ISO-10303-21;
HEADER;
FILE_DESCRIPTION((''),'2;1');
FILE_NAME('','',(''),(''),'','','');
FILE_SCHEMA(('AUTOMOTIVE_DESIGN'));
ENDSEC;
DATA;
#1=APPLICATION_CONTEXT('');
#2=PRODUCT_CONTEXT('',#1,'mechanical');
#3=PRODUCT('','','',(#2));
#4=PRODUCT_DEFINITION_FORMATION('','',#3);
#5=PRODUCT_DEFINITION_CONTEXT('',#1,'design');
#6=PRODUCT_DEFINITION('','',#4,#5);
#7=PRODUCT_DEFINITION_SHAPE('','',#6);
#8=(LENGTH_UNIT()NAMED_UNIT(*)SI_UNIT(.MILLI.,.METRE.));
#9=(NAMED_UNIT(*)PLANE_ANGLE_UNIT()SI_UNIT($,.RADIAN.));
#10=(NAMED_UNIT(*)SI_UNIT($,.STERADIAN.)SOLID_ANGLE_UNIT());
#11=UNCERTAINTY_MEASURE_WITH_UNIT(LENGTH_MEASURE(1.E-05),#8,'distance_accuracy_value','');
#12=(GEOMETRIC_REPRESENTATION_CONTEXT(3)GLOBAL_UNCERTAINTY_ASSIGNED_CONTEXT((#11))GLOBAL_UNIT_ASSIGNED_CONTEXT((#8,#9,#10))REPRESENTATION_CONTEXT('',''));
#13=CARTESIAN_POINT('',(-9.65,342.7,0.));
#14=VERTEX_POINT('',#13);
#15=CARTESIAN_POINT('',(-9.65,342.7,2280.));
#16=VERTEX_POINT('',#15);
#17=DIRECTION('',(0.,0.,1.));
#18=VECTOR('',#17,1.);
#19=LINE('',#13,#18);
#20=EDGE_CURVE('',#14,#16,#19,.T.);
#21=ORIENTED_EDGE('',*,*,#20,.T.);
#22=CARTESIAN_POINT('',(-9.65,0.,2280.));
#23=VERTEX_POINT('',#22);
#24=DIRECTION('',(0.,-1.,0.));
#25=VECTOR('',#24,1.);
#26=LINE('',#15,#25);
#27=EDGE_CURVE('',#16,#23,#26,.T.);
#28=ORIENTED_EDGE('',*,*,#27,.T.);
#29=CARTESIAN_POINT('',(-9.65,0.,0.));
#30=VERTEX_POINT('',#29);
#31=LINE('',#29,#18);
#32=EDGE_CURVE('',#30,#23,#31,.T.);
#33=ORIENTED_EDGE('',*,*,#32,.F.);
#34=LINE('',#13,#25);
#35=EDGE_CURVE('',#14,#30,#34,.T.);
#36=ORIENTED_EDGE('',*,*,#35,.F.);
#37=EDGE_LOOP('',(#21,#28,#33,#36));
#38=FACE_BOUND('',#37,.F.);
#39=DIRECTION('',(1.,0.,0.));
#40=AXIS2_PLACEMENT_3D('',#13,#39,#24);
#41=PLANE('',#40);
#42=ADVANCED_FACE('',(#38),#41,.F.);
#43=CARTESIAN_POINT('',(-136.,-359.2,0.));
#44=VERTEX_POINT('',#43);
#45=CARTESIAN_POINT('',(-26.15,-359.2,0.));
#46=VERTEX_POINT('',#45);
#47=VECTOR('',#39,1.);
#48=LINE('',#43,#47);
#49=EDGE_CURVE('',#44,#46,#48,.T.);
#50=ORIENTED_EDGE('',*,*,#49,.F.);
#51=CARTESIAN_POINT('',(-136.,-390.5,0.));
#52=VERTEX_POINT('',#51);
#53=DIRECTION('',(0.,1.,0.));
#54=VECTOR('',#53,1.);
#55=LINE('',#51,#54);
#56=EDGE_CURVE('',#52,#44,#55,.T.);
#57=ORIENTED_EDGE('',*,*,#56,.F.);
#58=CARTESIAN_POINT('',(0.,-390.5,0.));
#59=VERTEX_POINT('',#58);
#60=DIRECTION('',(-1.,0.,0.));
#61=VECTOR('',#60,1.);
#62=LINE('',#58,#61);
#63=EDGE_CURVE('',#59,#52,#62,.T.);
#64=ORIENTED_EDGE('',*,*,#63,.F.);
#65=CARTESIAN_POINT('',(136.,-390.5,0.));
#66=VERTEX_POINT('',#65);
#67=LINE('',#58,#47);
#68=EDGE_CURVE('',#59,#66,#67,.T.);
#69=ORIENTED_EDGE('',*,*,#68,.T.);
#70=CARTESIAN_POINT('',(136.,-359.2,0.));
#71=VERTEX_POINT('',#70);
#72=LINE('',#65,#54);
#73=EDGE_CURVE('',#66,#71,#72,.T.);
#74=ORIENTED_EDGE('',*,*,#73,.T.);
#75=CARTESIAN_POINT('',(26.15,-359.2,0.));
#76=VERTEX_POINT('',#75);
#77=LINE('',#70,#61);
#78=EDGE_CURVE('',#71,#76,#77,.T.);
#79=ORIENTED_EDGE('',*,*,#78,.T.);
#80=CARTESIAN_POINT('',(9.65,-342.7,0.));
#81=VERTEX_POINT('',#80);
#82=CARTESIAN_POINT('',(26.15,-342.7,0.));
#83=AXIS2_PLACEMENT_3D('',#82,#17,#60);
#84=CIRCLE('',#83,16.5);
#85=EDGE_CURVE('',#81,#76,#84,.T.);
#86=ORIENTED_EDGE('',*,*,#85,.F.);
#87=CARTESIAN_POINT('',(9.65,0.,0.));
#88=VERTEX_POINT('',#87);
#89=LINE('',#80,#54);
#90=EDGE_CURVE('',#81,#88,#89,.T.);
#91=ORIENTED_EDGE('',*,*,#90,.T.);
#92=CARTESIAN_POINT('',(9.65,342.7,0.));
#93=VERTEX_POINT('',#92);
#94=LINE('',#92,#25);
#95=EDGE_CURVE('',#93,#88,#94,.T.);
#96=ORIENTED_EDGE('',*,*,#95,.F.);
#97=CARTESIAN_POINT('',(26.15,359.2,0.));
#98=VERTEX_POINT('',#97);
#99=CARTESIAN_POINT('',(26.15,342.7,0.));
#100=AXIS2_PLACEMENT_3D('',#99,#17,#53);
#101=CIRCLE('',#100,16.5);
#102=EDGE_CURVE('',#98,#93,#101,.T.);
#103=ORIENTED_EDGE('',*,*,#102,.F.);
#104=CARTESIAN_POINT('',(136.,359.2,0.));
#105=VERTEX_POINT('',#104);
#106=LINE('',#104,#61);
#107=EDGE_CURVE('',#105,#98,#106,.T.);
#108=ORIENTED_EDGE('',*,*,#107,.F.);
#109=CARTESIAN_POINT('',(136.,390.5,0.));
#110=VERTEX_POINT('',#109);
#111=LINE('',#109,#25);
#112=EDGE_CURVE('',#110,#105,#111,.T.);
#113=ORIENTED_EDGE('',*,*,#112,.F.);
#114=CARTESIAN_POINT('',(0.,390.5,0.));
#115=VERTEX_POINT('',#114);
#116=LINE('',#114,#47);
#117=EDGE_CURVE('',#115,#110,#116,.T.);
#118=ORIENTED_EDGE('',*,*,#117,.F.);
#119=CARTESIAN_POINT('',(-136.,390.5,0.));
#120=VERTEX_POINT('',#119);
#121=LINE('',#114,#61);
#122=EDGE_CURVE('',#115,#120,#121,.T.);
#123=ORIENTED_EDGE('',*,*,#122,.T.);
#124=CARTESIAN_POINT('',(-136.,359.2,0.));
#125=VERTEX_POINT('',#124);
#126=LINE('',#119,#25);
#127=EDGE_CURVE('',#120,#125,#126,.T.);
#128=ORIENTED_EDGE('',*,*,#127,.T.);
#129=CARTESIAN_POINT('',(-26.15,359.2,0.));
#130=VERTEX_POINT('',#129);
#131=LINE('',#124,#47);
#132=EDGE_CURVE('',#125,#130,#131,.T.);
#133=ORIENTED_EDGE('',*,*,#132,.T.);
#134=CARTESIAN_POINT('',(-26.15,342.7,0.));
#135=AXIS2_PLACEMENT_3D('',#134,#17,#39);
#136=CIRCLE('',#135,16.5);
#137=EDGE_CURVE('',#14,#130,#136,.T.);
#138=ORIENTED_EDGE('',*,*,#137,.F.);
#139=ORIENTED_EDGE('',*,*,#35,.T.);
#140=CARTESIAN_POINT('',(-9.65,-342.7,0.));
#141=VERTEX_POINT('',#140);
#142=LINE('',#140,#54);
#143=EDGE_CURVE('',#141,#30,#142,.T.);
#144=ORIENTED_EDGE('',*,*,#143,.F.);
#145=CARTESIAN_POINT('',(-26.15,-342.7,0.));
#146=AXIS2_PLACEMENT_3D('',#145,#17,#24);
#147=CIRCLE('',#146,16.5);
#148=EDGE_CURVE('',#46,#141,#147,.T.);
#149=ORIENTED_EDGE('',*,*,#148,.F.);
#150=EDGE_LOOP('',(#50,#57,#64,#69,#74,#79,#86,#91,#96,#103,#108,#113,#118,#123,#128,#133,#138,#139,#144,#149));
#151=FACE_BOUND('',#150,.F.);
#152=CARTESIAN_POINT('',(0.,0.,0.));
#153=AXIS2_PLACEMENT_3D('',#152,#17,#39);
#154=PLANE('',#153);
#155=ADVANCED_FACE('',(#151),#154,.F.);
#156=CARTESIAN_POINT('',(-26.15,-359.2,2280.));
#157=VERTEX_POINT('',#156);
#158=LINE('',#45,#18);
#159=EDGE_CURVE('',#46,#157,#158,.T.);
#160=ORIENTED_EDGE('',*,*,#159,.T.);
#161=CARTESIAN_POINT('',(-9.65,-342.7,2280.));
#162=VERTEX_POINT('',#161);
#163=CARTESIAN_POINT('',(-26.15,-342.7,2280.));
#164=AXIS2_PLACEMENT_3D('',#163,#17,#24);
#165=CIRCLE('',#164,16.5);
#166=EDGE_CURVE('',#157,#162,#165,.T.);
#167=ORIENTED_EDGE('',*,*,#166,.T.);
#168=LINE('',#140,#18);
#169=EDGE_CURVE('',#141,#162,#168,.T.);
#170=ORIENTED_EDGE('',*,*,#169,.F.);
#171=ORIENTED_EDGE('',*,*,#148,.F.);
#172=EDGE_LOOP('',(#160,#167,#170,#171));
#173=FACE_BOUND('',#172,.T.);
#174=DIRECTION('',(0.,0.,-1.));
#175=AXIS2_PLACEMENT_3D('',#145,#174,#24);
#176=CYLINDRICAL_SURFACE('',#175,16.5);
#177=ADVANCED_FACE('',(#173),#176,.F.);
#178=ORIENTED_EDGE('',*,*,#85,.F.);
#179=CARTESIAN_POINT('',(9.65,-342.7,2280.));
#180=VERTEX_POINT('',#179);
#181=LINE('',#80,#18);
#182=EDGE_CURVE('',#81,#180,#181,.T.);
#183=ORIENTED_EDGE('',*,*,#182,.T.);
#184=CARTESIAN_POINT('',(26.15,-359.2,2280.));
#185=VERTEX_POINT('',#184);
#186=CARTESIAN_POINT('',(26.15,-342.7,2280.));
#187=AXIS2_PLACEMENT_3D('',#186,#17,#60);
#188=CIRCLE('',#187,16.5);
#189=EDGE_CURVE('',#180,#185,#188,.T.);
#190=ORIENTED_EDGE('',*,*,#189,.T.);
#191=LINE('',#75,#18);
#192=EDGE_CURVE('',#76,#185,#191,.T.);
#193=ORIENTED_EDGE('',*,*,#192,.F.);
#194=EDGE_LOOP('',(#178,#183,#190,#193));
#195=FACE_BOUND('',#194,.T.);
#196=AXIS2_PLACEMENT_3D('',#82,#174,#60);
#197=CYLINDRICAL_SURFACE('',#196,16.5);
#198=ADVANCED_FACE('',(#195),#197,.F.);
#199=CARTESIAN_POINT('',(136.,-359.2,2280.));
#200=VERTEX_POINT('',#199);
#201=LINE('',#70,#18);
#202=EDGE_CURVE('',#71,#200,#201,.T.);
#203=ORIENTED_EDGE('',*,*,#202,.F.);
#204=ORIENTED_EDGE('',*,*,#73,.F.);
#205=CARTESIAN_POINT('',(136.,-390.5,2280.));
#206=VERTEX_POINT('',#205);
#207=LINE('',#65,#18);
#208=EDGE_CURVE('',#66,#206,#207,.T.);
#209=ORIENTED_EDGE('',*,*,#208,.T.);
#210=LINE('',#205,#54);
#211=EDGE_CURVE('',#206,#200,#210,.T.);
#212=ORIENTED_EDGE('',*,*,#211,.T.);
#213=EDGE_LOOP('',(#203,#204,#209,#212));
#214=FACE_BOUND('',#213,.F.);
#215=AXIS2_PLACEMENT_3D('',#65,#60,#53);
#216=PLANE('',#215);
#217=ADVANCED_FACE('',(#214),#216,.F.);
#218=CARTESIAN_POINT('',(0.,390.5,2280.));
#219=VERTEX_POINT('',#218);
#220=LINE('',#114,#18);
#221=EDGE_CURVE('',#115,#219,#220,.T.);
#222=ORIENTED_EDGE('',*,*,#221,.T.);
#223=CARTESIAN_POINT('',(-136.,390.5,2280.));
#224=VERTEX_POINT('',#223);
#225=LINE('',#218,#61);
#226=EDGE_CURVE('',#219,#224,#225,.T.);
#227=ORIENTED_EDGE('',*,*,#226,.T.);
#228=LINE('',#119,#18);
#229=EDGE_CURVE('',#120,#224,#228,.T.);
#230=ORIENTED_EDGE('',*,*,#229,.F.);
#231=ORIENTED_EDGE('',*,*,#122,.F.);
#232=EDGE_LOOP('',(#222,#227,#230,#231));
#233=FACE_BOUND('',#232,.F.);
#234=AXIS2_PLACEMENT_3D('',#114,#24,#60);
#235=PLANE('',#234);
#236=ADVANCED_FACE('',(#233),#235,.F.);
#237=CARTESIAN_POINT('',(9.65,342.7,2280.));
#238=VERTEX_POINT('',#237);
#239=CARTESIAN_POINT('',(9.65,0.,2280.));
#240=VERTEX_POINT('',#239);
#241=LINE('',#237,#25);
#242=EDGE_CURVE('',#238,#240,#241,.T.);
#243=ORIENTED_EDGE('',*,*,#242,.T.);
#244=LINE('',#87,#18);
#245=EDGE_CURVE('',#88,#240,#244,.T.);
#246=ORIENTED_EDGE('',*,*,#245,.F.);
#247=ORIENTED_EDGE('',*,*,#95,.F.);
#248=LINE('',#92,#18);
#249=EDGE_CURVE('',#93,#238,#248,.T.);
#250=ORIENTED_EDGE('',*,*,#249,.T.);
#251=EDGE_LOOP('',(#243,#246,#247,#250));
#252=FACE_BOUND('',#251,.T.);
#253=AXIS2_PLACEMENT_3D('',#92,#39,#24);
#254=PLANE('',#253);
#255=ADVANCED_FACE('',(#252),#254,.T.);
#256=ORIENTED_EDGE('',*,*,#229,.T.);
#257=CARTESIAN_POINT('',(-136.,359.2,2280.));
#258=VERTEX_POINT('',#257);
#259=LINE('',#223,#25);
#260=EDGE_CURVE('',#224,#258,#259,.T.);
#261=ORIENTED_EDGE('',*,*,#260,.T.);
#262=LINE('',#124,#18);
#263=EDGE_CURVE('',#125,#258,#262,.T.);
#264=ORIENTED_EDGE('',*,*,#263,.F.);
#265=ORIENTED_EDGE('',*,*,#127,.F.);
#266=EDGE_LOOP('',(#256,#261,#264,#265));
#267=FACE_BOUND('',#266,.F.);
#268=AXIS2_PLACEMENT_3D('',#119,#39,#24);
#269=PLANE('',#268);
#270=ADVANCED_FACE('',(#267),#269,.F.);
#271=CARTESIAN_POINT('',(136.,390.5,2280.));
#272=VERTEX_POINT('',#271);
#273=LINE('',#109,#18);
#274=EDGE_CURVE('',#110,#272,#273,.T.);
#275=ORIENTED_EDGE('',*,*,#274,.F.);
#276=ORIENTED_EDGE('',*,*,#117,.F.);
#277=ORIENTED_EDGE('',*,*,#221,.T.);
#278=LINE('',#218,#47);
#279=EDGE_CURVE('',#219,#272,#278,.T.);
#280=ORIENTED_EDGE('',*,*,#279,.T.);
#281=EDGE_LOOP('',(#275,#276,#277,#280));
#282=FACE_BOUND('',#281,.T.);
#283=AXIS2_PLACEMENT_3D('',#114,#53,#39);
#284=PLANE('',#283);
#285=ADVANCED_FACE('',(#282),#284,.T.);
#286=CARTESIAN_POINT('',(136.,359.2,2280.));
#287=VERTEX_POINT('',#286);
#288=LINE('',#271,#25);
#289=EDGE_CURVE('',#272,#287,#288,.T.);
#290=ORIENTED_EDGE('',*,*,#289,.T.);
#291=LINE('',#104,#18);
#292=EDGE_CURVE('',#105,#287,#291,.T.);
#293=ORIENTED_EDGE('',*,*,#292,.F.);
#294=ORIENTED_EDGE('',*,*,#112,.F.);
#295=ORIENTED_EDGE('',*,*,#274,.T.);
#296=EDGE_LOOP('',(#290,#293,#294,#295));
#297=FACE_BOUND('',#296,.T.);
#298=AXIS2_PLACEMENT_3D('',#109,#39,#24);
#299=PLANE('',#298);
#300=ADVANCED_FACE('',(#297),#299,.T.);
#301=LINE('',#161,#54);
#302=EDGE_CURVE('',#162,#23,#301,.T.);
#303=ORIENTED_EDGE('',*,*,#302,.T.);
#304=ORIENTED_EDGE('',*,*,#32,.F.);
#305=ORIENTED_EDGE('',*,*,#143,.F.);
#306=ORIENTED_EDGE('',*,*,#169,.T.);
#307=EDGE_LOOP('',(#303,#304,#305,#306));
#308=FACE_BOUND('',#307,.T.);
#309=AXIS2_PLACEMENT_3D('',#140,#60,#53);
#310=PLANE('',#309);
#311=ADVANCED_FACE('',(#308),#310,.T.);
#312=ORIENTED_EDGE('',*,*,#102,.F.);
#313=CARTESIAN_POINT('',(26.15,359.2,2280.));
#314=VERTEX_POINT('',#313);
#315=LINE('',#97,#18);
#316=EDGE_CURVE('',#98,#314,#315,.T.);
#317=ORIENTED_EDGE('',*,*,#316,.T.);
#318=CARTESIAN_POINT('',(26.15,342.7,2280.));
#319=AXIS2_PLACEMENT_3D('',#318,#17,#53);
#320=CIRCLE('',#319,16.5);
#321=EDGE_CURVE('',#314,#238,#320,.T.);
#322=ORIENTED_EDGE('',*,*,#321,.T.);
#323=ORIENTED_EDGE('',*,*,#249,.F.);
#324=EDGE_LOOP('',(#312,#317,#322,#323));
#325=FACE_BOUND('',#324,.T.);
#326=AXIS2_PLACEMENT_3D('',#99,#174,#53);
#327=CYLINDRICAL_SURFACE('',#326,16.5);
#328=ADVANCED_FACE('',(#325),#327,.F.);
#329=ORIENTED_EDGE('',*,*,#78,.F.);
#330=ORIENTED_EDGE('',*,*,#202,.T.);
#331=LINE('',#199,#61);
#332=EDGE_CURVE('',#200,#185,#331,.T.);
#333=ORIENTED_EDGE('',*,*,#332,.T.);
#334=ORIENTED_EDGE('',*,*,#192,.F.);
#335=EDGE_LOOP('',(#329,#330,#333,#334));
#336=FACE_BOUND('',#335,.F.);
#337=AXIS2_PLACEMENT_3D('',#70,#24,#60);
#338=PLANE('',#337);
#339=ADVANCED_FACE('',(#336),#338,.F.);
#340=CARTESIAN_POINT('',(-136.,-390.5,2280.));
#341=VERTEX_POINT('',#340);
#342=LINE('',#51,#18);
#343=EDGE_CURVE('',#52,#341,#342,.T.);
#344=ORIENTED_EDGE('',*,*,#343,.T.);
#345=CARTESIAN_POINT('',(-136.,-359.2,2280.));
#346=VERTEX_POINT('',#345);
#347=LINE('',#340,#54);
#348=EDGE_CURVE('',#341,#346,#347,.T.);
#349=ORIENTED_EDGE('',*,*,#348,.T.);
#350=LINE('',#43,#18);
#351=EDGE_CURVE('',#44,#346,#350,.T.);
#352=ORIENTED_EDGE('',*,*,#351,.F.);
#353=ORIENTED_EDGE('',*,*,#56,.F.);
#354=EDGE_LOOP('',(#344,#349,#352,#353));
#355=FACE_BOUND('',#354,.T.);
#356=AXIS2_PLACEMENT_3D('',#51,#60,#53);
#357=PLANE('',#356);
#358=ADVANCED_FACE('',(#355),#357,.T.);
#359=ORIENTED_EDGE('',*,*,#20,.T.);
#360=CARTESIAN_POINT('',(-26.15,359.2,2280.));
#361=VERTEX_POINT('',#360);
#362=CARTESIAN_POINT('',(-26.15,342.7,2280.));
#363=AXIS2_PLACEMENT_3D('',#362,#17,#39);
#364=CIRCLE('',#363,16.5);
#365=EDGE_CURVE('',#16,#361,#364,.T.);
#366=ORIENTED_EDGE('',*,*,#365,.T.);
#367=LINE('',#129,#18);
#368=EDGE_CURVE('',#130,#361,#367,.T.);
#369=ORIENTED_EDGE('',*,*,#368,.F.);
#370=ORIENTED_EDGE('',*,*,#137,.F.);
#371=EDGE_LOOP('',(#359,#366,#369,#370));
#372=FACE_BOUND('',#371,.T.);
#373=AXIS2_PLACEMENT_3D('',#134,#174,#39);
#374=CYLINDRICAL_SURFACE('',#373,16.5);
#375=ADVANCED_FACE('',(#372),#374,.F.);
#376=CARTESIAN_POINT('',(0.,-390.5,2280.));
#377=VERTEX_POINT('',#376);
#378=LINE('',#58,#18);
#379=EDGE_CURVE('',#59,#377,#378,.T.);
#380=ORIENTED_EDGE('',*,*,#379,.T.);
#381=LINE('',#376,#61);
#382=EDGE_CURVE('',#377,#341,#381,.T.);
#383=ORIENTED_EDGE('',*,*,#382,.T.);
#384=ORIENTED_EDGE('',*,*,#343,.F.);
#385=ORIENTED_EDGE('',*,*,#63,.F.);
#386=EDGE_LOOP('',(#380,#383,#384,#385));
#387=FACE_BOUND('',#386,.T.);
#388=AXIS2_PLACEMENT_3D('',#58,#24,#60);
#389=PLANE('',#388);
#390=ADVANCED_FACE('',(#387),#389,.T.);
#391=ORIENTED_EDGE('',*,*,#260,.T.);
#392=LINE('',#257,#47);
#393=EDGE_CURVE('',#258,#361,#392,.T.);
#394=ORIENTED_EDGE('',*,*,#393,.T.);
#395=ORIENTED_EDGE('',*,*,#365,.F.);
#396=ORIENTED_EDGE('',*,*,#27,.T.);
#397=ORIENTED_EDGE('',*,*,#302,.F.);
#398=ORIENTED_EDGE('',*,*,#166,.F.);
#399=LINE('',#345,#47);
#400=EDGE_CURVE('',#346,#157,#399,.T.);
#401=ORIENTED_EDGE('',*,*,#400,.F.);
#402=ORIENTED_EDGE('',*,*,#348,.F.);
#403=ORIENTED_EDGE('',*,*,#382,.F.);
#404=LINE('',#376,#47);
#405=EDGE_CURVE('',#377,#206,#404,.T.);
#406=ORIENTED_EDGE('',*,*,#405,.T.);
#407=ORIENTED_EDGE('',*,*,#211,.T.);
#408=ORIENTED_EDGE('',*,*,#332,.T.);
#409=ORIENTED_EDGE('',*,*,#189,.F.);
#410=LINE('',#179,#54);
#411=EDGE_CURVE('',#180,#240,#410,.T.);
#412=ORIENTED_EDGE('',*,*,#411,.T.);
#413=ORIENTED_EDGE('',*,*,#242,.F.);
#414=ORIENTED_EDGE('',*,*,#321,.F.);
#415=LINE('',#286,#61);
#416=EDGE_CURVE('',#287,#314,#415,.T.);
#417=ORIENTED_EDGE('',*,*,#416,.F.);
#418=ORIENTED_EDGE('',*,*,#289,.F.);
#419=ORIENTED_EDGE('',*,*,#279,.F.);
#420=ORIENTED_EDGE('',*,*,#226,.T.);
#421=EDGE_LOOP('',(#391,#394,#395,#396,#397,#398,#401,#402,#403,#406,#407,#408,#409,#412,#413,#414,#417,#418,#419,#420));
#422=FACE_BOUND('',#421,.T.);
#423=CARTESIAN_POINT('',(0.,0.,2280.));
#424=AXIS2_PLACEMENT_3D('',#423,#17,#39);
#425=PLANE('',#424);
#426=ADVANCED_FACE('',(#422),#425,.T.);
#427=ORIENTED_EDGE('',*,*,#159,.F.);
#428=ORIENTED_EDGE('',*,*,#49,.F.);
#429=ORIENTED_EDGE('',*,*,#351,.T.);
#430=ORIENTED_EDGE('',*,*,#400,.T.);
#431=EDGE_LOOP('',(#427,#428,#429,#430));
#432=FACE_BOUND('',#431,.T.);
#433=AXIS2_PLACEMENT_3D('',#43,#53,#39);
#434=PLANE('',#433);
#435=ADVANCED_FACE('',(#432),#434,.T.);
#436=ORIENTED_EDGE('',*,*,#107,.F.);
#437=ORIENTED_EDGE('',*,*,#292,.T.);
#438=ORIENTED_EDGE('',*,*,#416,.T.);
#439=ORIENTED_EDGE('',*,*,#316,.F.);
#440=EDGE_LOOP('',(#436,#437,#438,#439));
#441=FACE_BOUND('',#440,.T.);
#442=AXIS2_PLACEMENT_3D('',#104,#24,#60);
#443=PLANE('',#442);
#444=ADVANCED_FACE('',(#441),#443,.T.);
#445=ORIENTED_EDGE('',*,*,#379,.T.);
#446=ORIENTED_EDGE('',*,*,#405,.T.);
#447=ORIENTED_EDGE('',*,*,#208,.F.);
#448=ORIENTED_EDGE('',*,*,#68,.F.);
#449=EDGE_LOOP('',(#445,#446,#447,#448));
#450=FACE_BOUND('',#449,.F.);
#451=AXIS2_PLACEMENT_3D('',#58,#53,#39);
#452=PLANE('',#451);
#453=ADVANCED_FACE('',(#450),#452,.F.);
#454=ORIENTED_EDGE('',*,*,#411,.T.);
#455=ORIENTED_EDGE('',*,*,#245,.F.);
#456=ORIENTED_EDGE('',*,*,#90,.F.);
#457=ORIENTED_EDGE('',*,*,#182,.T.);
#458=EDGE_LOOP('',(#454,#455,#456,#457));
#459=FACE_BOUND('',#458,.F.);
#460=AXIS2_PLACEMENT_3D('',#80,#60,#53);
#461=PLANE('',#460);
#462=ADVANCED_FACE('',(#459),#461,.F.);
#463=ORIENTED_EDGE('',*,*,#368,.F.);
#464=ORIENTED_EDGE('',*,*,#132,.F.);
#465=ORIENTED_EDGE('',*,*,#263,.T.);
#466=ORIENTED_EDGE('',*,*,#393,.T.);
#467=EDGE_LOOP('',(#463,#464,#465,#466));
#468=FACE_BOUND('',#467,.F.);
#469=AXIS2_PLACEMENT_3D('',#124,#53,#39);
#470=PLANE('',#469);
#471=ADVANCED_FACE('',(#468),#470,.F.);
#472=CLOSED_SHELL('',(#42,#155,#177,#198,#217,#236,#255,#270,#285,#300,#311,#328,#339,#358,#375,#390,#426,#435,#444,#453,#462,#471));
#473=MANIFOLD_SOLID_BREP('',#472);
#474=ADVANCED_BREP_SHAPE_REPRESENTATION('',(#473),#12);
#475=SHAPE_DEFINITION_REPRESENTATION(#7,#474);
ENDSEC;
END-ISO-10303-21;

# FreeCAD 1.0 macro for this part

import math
import FreeCAD as App
import Part
import Sketcher
from FreeCAD import Vector
Q = App.Units.Quantity

doc = App.newDocument("Part")
body = doc.addObject("PartDesign::Body", "Body")

# Sketch on XY plane
sketch1 = body.newObject("Sketcher::SketchObject", "Sketch")
sketch1.AttachmentSupport = (doc.getObject("XY_Plane"), [""])
sketch1.MapMode = "FlatFace"
sketch1.addGeometry([
    Part.LineSegment(Vector(-136, -359.2, 0), Vector(-136, -390.5, 0)),  # 0
    Part.LineSegment(Vector(-136, -390.5, 0), Vector(136, -390.5, 0)),  # 1
    Part.LineSegment(Vector(136, -390.5, 0), Vector(136, -359.2, 0)),  # 2
    Part.LineSegment(Vector(136, -359.2, 0), Vector(26.15, -359.2, 0)),  # 3
    Part.ArcOfCircle(Part.Circle(Vector(26.15, -342.7, 0), Vector(0, 0, 1), 16.5), math.radians(180), math.radians(270)),  # 4
    Part.LineSegment(Vector(9.65, -342.7, 0), Vector(9.65, 342.7, 0)),  # 5
    Part.ArcOfCircle(Part.Circle(Vector(26.15, 342.7, 0), Vector(0, 0, 1), 16.5), math.radians(90), math.radians(180)),  # 6
    Part.LineSegment(Vector(26.15, 359.2, 0), Vector(136, 359.2, 0)),  # 7
    Part.LineSegment(Vector(136, 359.2, 0), Vector(136, 390.5, 0)),  # 8
    Part.LineSegment(Vector(136, 390.5, 0), Vector(-136, 390.5, 0)),  # 9
    Part.LineSegment(Vector(-136, 390.5, 0), Vector(-136, 359.2, 0)),  # 10
    Part.LineSegment(Vector(-136, 359.2, 0), Vector(-26.15, 359.2, 0)),  # 11
    Part.ArcOfCircle(Part.Circle(Vector(-26.15, 342.7, 0), Vector(0, 0, 1), 16.5), math.radians(0), math.radians(90)),  # 12
    Part.LineSegment(Vector(-9.65, 342.7, 0), Vector(-9.65, -342.7, 0)),  # 13
    Part.ArcOfCircle(Part.Circle(Vector(-26.15, -342.7, 0), Vector(0, 0, 1), 16.5), math.radians(-90), math.radians(0)),  # 14
    Part.LineSegment(Vector(-26.15, -359.2, 0), Vector(-136, -359.2, 0)),  # 15
], False)
sketch1.addConstraint([
    Sketcher.Constraint("Coincident", 0, 2, 1, 1),
    Sketcher.Constraint("Coincident", 1, 2, 2, 1),
    Sketcher.Constraint("Coincident", 2, 2, 3, 1),
    Sketcher.Constraint("Tangent", 3, 2, 4, 2),
    Sketcher.Constraint("Tangent", 4, 1, 5, 1),
    Sketcher.Constraint("Tangent", 5, 2, 6, 2),
    Sketcher.Constraint("Tangent", 6, 1, 7, 1),
    Sketcher.Constraint("Coincident", 7, 2, 8, 1),
    Sketcher.Constraint("Coincident", 8, 2, 9, 1),
    Sketcher.Constraint("Coincident", 9, 2, 10, 1),
    Sketcher.Constraint("Coincident", 10, 2, 11, 1),
    Sketcher.Constraint("Tangent", 11, 2, 12, 2),
    Sketcher.Constraint("Tangent", 12, 1, 13, 1),
    Sketcher.Constraint("Tangent", 13, 2, 14, 2),
    Sketcher.Constraint("Tangent", 14, 1, 15, 1),
    Sketcher.Constraint("Coincident", 15, 2, 0, 1),
    Sketcher.Constraint("Vertical", 0),
    Sketcher.Constraint("Horizontal", 1),
    Sketcher.Constraint("Vertical", 2),
    Sketcher.Constraint("Horizontal", 3),
    Sketcher.Constraint("Vertical", 5),
    Sketcher.Constraint("Horizontal", 7),
    Sketcher.Constraint("Vertical", 8),
    Sketcher.Constraint("Horizontal", 9),
    Sketcher.Constraint("Vertical", 10),
    Sketcher.Constraint("Horizontal", 11),
    Sketcher.Constraint("Vertical", 13),
    Sketcher.Constraint("Horizontal", 15),
    Sketcher.Constraint("Equal", 4, 6),
    Sketcher.Constraint("Equal", 6, 12),
    Sketcher.Constraint("Equal", 12, 14),
    Sketcher.Constraint("Symmetric", 4, 3, 12, 3, -1, 1),
    Sketcher.Constraint("Symmetric", 0, 2, 8, 2, -1, 1),
    Sketcher.Constraint("Symmetric", 7, 2, 10, 2, -2),
    Sketcher.Constraint("Symmetric", 2, 2, 15, 2, -2),
    Sketcher.Constraint("Radius", 4, Q("16.5 mm")),
    Sketcher.Constraint("DistanceY", 0, 2, 0, 1, Q("31.3 mm")),
    Sketcher.Constraint("DistanceX", 0, 2, -1, 1, Q("136 mm")),
    Sketcher.Constraint("DistanceY", 0, 2, -1, 1, Q("390.5 mm")),
    Sketcher.Constraint("DistanceX", -1, 1, 4, 1, Q("9.65 mm")),
])
pad1 = body.newObject("PartDesign::Pad", "Pad")
pad1.Profile = sketch1
pad1.Length = 2280

doc.recompute()
